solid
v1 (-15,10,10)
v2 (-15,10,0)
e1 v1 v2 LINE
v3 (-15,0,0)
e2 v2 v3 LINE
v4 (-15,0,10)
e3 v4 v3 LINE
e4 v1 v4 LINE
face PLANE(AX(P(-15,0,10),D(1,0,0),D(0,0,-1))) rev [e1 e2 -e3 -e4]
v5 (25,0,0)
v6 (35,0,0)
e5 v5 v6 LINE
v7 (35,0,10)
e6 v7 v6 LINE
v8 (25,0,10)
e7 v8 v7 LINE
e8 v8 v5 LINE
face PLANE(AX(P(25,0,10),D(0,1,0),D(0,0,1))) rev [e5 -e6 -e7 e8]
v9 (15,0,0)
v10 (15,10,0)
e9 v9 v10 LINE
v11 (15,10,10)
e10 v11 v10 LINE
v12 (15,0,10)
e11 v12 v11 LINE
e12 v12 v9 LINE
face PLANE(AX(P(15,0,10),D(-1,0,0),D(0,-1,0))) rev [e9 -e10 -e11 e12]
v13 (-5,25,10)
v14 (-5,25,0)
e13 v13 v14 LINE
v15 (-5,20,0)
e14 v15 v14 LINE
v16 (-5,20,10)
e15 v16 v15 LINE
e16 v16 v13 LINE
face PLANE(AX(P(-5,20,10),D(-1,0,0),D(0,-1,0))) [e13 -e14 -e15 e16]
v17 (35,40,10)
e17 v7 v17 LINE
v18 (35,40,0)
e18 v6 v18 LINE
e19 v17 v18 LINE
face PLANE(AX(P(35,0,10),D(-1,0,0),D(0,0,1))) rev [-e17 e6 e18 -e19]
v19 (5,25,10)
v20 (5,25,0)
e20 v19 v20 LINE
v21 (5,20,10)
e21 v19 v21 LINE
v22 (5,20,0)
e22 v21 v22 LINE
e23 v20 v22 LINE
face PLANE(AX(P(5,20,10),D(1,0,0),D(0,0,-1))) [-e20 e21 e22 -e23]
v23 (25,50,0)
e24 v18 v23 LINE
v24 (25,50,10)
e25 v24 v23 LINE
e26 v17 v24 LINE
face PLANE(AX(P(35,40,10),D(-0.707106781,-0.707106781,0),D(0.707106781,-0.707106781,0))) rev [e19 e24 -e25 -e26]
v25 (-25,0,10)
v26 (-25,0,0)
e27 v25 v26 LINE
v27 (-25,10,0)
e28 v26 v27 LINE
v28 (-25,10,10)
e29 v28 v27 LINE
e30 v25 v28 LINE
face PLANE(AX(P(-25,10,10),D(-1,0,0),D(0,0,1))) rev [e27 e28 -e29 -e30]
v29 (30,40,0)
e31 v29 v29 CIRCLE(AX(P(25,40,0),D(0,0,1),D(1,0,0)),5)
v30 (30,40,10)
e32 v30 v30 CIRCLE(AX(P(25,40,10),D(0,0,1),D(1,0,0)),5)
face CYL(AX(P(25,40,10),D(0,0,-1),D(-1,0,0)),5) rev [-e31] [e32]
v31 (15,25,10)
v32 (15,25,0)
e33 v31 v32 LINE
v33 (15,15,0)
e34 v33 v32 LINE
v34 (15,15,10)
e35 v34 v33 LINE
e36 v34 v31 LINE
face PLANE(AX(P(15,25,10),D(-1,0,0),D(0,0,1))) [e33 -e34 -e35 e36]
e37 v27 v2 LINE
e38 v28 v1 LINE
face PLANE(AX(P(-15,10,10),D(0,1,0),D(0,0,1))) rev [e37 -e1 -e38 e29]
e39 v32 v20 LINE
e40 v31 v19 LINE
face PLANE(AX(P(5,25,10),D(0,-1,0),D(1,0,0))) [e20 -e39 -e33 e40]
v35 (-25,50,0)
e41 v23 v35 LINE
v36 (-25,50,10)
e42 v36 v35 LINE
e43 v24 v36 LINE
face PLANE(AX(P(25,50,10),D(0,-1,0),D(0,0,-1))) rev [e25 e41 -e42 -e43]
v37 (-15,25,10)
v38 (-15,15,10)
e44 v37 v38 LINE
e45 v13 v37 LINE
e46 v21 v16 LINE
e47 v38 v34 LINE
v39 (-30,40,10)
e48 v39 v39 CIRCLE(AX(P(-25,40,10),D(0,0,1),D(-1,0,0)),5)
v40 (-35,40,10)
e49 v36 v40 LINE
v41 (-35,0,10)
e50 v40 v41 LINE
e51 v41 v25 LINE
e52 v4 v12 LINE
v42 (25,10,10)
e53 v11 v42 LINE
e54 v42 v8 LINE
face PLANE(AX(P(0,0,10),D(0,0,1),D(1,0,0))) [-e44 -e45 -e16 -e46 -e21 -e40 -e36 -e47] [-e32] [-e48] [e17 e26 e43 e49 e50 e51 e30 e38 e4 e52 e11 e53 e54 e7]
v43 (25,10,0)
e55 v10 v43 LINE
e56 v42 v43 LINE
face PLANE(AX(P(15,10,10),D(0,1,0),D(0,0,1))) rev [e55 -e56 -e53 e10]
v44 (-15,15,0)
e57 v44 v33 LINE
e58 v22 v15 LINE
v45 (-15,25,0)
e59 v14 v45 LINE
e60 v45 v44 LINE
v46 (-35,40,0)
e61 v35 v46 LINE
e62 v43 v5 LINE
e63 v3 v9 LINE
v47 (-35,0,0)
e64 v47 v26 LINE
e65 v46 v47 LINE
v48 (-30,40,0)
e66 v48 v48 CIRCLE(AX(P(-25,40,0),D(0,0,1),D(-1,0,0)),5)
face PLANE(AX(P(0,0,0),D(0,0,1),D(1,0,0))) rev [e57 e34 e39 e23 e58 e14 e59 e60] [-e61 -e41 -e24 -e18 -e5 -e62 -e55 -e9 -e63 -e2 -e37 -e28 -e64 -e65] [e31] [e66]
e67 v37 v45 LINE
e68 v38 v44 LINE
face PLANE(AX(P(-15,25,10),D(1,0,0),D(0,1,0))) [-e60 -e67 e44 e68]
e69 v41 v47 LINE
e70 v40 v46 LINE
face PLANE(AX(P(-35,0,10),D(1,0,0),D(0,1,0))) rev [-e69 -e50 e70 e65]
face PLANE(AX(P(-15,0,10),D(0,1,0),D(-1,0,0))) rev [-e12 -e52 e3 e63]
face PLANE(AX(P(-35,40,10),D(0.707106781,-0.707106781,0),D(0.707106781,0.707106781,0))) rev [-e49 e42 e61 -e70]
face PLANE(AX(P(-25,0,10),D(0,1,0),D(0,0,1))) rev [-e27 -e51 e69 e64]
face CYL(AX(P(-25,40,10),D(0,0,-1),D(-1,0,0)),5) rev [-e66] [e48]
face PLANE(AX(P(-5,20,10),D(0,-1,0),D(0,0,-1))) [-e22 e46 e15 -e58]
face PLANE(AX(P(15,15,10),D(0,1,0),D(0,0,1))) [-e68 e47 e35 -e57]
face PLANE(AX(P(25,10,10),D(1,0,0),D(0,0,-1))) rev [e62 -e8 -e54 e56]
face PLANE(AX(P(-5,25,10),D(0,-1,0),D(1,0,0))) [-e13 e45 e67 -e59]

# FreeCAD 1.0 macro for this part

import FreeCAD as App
import Part
import Sketcher

V = App.Vector
Q = App.Units.Quantity

doc = App.newDocument("Part")
params = doc.addObject("Spreadsheet::Sheet", "Params")
for row, (alias, value) in enumerate([
    ("sketch1_diameter", "10 mm"),
    ("sketch1_width", "30 mm"),
    ("sketch1_height", "40 mm"),
    ("sketch1_height2", "5 mm"),
    ("pad1_length", "10 mm"),
], start=1):
    params.set(f"A{row}", alias)
    params.set(f"B{row}", "=" + value)
    params.setAlias(f"B{row}", alias)

body = doc.addObject("PartDesign::Body", "Body")

sketch1 = body.newObject("Sketcher::SketchObject", "Sketch")
sketch1.AttachmentSupport = (doc.getObject("XY_Plane"), [""])
sketch1.MapMode = "FlatFace"
sketch1.addGeometry([
    Part.LineSegment(V(-15, 0, 0), V(15, 0, 0)),
    Part.LineSegment(V(15, 0, 0), V(15, 10, 0)),
    Part.LineSegment(V(15, 10, 0), V(25, 10, 0)),
    Part.LineSegment(V(25, 10, 0), V(25, 0, 0)),
    Part.LineSegment(V(25, 0, 0), V(35, 0, 0)),
    Part.LineSegment(V(35, 0, 0), V(35, 40, 0)),
    Part.LineSegment(V(35, 40, 0), V(25, 50, 0)),
    Part.LineSegment(V(25, 50, 0), V(-25, 50, 0)),
    Part.LineSegment(V(-25, 50, 0), V(-35, 40, 0)),
    Part.LineSegment(V(-35, 40, 0), V(-35, 0, 0)),
    Part.LineSegment(V(-35, 0, 0), V(-25, 0, 0)),
    Part.LineSegment(V(-25, 0, 0), V(-25, 10, 0)),
    Part.LineSegment(V(-25, 10, 0), V(-15, 10, 0)),
    Part.LineSegment(V(-15, 10, 0), V(-15, 0, 0)),
    Part.LineSegment(V(-5, 25, 0), V(-5, 20, 0)),
    Part.LineSegment(V(-5, 20, 0), V(5, 20, 0)),
    Part.LineSegment(V(5, 20, 0), V(5, 25, 0)),
    Part.LineSegment(V(5, 25, 0), V(15, 25, 0)),
    Part.LineSegment(V(15, 25, 0), V(15, 15, 0)),
    Part.LineSegment(V(15, 15, 0), V(-15, 15, 0)),
    Part.LineSegment(V(-15, 15, 0), V(-15, 25, 0)),
    Part.LineSegment(V(-15, 25, 0), V(-5, 25, 0)),
    Part.Circle(V(-25, 40, 0), V(0, 0, 1), 5),
    Part.Circle(V(25, 40, 0), V(0, 0, 1), 5),
], False)
sketch1.addConstraint([
    Sketcher.Constraint("Coincident", 0, 2, 1, 1),
    Sketcher.Constraint("Coincident", 1, 2, 2, 1),
    Sketcher.Constraint("Coincident", 2, 2, 3, 1),
    Sketcher.Constraint("Coincident", 3, 2, 4, 1),
    Sketcher.Constraint("Coincident", 4, 2, 5, 1),
    Sketcher.Constraint("Coincident", 5, 2, 6, 1),
    Sketcher.Constraint("Coincident", 6, 2, 7, 1),
    Sketcher.Constraint("Coincident", 7, 2, 8, 1),
    Sketcher.Constraint("Coincident", 8, 2, 9, 1),
    Sketcher.Constraint("Coincident", 9, 2, 10, 1),
    Sketcher.Constraint("Coincident", 10, 2, 11, 1),
    Sketcher.Constraint("Coincident", 11, 2, 12, 1),
    Sketcher.Constraint("Coincident", 12, 2, 13, 1),
    Sketcher.Constraint("Coincident", 13, 2, 0, 1),
    Sketcher.Constraint("Coincident", 14, 2, 15, 1),
    Sketcher.Constraint("Coincident", 15, 2, 16, 1),
    Sketcher.Constraint("Coincident", 16, 2, 17, 1),
    Sketcher.Constraint("Coincident", 17, 2, 18, 1),
    Sketcher.Constraint("Coincident", 18, 2, 19, 1),
    Sketcher.Constraint("Coincident", 19, 2, 20, 1),
    Sketcher.Constraint("Coincident", 20, 2, 21, 1),
    Sketcher.Constraint("Coincident", 21, 2, 14, 1),
    Sketcher.Constraint("Horizontal", 0),
    Sketcher.Constraint("Vertical", 1),
    Sketcher.Constraint("Horizontal", 2),
    Sketcher.Constraint("Vertical", 3),
    Sketcher.Constraint("Horizontal", 4),
    Sketcher.Constraint("Vertical", 5),
    Sketcher.Constraint("Horizontal", 7),
    Sketcher.Constraint("Vertical", 9),
    Sketcher.Constraint("Horizontal", 10),
    Sketcher.Constraint("Vertical", 11),
    Sketcher.Constraint("Horizontal", 12),
    Sketcher.Constraint("Vertical", 13),
    Sketcher.Constraint("Vertical", 14),
    Sketcher.Constraint("Horizontal", 15),
    Sketcher.Constraint("Vertical", 16),
    Sketcher.Constraint("Horizontal", 17),
    Sketcher.Constraint("Vertical", 18),
    Sketcher.Constraint("Horizontal", 19),
    Sketcher.Constraint("Vertical", 20),
    Sketcher.Constraint("Horizontal", 21),
    Sketcher.Constraint("Equal", 22, 23),
    Sketcher.Constraint("Symmetric", 4, 2, 9, 2, -1, 1),
    Sketcher.Constraint("Symmetric", 0, 2, 13, 2, -1, 1),
    Sketcher.Constraint("Symmetric", 22, 3, 23, 3, -2),
    Sketcher.Constraint("Symmetric", 3, 2, 10, 2, -2),
    Sketcher.Constraint("Symmetric", 17, 2, 20, 2, -2),
    Sketcher.Constraint("Perpendicular", 6, 8),
    Sketcher.Constraint("Horizontal", 23, 3, 5, 2),
    Sketcher.Constraint("Horizontal", 5, 2, 8, 2),
    Sketcher.Constraint("Horizontal", 2, 2, 11, 2),
    Sketcher.Constraint("Vertical", 23, 3, 2, 2),
    Sketcher.Constraint("Vertical", 3, 2, 6, 2),
    Sketcher.Constraint("Vertical", 22, 3, 7, 2),
    Sketcher.Constraint("Vertical", 1, 2, 17, 2),
    Sketcher.Constraint("Equal", 2, 4),
    Sketcher.Constraint("Equal", 12, 15),
    Sketcher.Constraint("Equal", 15, 17),
    Sketcher.Constraint("Equal", 17, 21),
    Sketcher.Constraint("Equal", 21, 1),
    Sketcher.Constraint("Equal", 13, 18),
    Sketcher.Constraint("Diameter", 22, Q("10 mm")),
    Sketcher.Constraint("DistanceX", 0, 1, 0, 2, Q("30 mm")),
    Sketcher.Constraint("DistanceY", 5, 1, 5, 2, Q("40 mm")),
    Sketcher.Constraint("DistanceY", 14, 2, 14, 1, Q("5 mm")),
    Sketcher.Constraint("DistanceY", -1, 1, 14, 2, Q("20 mm")),
])
sketch1.setExpression("Constraints[62]", "Params.sketch1_diameter")
sketch1.setExpression("Constraints[63]", "Params.sketch1_width")
sketch1.setExpression("Constraints[64]", "Params.sketch1_height")
sketch1.setExpression("Constraints[65]", "Params.sketch1_height2")
pad1 = body.newObject("PartDesign::Pad", "Pad")
pad1.Profile = sketch1
pad1.setExpression("Length", "Params.pad1_length")

doc.recompute()
